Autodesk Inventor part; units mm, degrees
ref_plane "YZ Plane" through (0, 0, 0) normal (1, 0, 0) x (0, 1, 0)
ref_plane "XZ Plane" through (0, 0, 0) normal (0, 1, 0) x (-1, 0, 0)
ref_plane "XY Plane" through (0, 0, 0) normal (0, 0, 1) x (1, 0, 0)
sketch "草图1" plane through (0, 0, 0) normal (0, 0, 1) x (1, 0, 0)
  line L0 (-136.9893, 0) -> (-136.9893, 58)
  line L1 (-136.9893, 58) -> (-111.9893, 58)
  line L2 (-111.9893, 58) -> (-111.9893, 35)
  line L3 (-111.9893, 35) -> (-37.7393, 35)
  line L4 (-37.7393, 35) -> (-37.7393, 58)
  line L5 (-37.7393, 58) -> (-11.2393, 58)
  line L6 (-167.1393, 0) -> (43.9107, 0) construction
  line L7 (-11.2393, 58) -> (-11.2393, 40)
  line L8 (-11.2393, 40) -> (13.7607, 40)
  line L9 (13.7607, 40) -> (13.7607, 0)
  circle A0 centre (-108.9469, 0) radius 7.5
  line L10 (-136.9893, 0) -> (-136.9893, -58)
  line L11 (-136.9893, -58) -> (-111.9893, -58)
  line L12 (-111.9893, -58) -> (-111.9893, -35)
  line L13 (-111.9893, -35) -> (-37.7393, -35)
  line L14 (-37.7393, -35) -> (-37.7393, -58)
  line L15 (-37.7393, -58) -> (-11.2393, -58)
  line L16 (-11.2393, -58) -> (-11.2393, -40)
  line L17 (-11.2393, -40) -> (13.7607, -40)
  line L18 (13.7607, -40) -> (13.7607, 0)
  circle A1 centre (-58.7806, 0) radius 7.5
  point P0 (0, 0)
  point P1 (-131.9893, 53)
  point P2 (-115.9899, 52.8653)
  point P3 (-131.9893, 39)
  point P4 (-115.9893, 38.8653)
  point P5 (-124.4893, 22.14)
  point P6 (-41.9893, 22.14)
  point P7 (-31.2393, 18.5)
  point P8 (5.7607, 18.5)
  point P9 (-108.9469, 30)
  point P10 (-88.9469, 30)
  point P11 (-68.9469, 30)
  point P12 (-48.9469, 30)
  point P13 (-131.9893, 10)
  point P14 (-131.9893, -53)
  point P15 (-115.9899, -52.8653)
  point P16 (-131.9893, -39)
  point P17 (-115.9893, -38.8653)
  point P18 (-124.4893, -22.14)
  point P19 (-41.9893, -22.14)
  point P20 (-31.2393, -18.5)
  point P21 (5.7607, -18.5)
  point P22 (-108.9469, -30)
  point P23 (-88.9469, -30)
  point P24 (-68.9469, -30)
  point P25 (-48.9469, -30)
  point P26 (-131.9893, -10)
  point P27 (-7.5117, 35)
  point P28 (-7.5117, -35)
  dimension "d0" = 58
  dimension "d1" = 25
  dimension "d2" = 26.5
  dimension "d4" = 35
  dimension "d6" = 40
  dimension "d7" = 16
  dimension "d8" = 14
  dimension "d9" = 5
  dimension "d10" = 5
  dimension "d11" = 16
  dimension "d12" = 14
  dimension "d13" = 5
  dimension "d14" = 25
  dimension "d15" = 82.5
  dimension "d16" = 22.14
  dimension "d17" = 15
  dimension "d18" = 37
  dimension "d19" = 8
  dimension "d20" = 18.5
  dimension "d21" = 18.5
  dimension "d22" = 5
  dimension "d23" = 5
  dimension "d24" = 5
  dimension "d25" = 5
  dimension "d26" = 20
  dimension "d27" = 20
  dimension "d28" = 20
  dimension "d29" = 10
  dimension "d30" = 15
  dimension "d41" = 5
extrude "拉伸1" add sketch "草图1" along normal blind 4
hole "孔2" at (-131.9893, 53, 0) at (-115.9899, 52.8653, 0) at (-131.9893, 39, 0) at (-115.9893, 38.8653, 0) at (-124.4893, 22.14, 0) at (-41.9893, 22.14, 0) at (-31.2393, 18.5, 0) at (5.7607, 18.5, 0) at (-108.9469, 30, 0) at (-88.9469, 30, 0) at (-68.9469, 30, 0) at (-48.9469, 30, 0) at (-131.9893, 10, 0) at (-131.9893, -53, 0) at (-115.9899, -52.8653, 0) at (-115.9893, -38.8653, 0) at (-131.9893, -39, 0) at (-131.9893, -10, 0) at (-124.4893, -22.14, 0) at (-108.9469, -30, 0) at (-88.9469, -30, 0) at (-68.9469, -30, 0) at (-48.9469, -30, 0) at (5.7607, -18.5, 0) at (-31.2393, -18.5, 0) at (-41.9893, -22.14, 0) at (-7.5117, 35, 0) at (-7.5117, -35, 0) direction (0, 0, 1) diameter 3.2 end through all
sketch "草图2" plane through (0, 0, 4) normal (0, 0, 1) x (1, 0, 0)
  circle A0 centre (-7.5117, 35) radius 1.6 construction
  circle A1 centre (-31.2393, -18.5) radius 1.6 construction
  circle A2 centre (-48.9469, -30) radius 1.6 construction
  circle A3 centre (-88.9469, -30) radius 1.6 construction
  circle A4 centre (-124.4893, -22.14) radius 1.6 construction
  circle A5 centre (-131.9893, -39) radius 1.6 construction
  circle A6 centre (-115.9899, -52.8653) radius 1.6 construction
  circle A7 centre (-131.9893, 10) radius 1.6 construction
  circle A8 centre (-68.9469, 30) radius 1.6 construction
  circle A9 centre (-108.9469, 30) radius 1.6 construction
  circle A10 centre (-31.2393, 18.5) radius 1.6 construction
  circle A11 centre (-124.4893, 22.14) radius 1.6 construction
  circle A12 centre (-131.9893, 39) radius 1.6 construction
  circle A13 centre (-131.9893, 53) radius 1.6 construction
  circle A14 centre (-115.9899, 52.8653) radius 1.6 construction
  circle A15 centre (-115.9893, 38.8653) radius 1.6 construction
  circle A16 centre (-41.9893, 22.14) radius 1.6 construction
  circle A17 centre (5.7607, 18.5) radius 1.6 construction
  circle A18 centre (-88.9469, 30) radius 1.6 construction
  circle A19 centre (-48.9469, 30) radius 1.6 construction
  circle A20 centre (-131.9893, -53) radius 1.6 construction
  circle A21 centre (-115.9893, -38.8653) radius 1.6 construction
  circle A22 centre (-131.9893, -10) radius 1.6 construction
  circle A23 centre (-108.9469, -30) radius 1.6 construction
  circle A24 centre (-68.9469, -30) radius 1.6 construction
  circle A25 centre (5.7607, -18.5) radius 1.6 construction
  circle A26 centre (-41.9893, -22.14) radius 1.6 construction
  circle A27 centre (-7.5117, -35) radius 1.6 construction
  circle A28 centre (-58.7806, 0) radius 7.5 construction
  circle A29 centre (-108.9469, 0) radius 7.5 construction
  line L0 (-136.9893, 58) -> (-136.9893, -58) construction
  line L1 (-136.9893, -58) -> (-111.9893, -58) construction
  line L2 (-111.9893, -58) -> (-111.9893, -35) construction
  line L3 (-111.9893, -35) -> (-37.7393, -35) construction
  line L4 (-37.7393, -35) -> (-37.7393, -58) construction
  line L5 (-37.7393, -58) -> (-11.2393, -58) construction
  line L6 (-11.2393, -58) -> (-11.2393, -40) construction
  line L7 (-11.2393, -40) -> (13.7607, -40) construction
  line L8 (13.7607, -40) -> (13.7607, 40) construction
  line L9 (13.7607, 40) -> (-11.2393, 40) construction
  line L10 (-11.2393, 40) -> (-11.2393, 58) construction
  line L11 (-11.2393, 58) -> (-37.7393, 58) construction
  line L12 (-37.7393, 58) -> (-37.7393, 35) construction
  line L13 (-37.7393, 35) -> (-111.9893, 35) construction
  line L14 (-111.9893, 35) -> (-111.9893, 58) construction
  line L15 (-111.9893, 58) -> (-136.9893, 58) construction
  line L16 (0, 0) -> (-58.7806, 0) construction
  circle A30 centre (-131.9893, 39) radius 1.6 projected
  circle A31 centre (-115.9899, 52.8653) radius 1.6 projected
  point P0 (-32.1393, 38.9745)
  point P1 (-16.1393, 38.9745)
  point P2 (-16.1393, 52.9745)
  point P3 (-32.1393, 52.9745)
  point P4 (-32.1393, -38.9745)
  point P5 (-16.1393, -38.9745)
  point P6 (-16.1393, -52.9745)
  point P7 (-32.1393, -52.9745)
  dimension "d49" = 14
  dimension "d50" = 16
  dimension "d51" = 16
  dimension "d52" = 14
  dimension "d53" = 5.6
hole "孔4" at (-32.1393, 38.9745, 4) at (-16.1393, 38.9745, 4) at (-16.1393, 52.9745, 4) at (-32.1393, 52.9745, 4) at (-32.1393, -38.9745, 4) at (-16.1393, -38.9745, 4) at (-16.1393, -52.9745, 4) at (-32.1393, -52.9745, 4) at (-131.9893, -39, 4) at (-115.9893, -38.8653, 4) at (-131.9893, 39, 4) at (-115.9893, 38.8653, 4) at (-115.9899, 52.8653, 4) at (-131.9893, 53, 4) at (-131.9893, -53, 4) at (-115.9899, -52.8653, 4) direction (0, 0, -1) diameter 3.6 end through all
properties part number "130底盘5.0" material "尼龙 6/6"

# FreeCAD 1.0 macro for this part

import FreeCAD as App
import Part
import Sketcher
Q = App.Units.Quantity

doc = App.newDocument("Part")
body = doc.addObject("PartDesign::Body", "Body")

# Sketch on XY plane
sketch1 = body.newObject("Sketcher::SketchObject", "Sketch")
sketch1.AttachmentSupport = (doc.getObject("XY_Plane"), [""])
sketch1.MapMode = "FlatFace"
sketch1.addGeometry([
    Part.LineSegment(App.Vector(-137, 58, 0), App.Vector(-137, -58, 0)),  # 0
    Part.LineSegment(App.Vector(-137, -58, 0), App.Vector(-112, -58, 0)),  # 1
    Part.LineSegment(App.Vector(-112, -58, 0), App.Vector(-112, -35, 0)),  # 2
    Part.LineSegment(App.Vector(-112, -35, 0), App.Vector(-38, -35, 0)),  # 3
    Part.LineSegment(App.Vector(-38, -35, 0), App.Vector(-38, -58, 0)),  # 4
    Part.LineSegment(App.Vector(-38, -58, 0), App.Vector(-11, -58, 0)),  # 5
    Part.LineSegment(App.Vector(-11, -58, 0), App.Vector(-11, -40, 0)),  # 6
    Part.LineSegment(App.Vector(-11, -40, 0), App.Vector(14, -40, 0)),  # 7
    Part.LineSegment(App.Vector(14, -40, 0), App.Vector(14, 40, 0)),  # 8
    Part.LineSegment(App.Vector(14, 40, 0), App.Vector(-11, 40, 0)),  # 9
    Part.LineSegment(App.Vector(-11, 40, 0), App.Vector(-11, 58, 0)),  # 10
    Part.LineSegment(App.Vector(-11, 58, 0), App.Vector(-38, 58, 0)),  # 11
    Part.LineSegment(App.Vector(-38, 58, 0), App.Vector(-38, 35, 0)),  # 12
    Part.LineSegment(App.Vector(-38, 35, 0), App.Vector(-112, 35, 0)),  # 13
    Part.LineSegment(App.Vector(-112, 35, 0), App.Vector(-112, 58, 0)),  # 14
    Part.LineSegment(App.Vector(-112, 58, 0), App.Vector(-137, 58, 0)),  # 15
    Part.Circle(App.Vector(-109, 0, 0), App.Vector(0, 0, 1), 8),  # 16
    Part.Circle(App.Vector(-59, 0, 0), App.Vector(0, 0, 1), 8),  # 17
], False)
sketch1.addConstraint([
    Sketcher.Constraint("Coincident", 0, 2, 1, 1),
    Sketcher.Constraint("Coincident", 1, 2, 2, 1),
    Sketcher.Constraint("Coincident", 2, 2, 3, 1),
    Sketcher.Constraint("Coincident", 3, 2, 4, 1),
    Sketcher.Constraint("Coincident", 4, 2, 5, 1),
    Sketcher.Constraint("Coincident", 5, 2, 6, 1),
    Sketcher.Constraint("Coincident", 6, 2, 7, 1),
    Sketcher.Constraint("Coincident", 7, 2, 8, 1),
    Sketcher.Constraint("Coincident", 8, 2, 9, 1),
    Sketcher.Constraint("Coincident", 9, 2, 10, 1),
    Sketcher.Constraint("Coincident", 10, 2, 11, 1),
    Sketcher.Constraint("Coincident", 11, 2, 12, 1),
    Sketcher.Constraint("Coincident", 12, 2, 13, 1),
    Sketcher.Constraint("Coincident", 13, 2, 14, 1),
    Sketcher.Constraint("Coincident", 14, 2, 15, 1),
    Sketcher.Constraint("Coincident", 15, 2, 0, 1),
    Sketcher.Constraint("Vertical", 0),
    Sketcher.Constraint("Horizontal", 1),
    Sketcher.Constraint("Vertical", 2),
    Sketcher.Constraint("Horizontal", 3),
    Sketcher.Constraint("Vertical", 4),
    Sketcher.Constraint("Horizontal", 5),
    Sketcher.Constraint("Vertical", 6),
    Sketcher.Constraint("Horizontal", 7),
    Sketcher.Constraint("Vertical", 8),
    Sketcher.Constraint("Horizontal", 9),
    Sketcher.Constraint("Vertical", 10),
    Sketcher.Constraint("Horizontal", 11),
    Sketcher.Constraint("Vertical", 12),
    Sketcher.Constraint("Horizontal", 13),
    Sketcher.Constraint("Vertical", 14),
    Sketcher.Constraint("Horizontal", 15),
    Sketcher.Constraint("Equal", 16, 17),
    Sketcher.Constraint("Symmetric", 6, 2, 9, 2, -1),
    Sketcher.Constraint("Symmetric", 4, 2, 11, 2, -1),
    Sketcher.Constraint("Symmetric", 2, 2, 13, 2, -1),
    Sketcher.Constraint("PointOnObject", 16, 3, -1),
    Sketcher.Constraint("PointOnObject", 17, 3, -1),
    Sketcher.Constraint("Horizontal", 1, 2, 4, 2),
    Sketcher.Constraint("Horizontal", 11, 2, 14, 2),
    Sketcher.Constraint("Equal", 1, 7),
    Sketcher.Constraint("Diameter", 16, Q("15 mm")),
    Sketcher.Constraint("DistanceX", 1, 1, 1, 2, Q("25 mm")),
    Sketcher.Constraint("DistanceX", 5, 1, 5, 2, Q("26.5 mm")),
    Sketcher.Constraint("DistanceY", 0, 2, -1, 1, Q("58 mm")),
    Sketcher.Constraint("DistanceY", 2, 2, -1, 1, Q("35 mm")),
    Sketcher.Constraint("DistanceY", 6, 2, -1, 1, Q("40 mm")),
    Sketcher.Constraint("DistanceX", 3, 1, 3, 2, Q("74.25 mm")),
    Sketcher.Constraint("DistanceX", 16, 3, -1, 1, Q("108.947 mm")),
    Sketcher.Constraint("DistanceX", 17, 3, -1, 1, Q("58.7806 mm")),
    Sketcher.Constraint("DistanceX", 0, 2, -1, 1, Q("136.9893 mm")),
])
pad1 = body.newObject("PartDesign::Pad", "Pad")
pad1.Profile = sketch1
pad1.Length = 4

# Sketch on XY plane
sketch2 = body.newObject("Sketcher::SketchObject", "Sketch001")
sketch2.AttachmentSupport = (doc.getObject("XY_Plane"), [""])
sketch2.MapMode = "FlatFace"
sketch2.addGeometry([
    Part.Circle(App.Vector(-132, 53, 0), App.Vector(0, 0, 1), 1.6),  # 0
    Part.Circle(App.Vector(-116, 52.9, 0), App.Vector(0, 0, 1), 1.6),  # 1
    Part.Circle(App.Vector(-132, 39, 0), App.Vector(0, 0, 1), 1.6),  # 2
    Part.Circle(App.Vector(-116, 38.9, 0), App.Vector(0, 0, 1), 1.6),  # 3
    Part.Circle(App.Vector(-124.5, 22.1, 0), App.Vector(0, 0, 1), 1.6),  # 4
    Part.Circle(App.Vector(-42, 22.1, 0), App.Vector(0, 0, 1), 1.6),  # 5
    Part.Circle(App.Vector(-31.2, 18.5, 0), App.Vector(0, 0, 1), 1.6),  # 6
    Part.Circle(App.Vector(5.8, 18.5, 0), App.Vector(0, 0, 1), 1.6),  # 7
    Part.Circle(App.Vector(-108.9, 30, 0), App.Vector(0, 0, 1), 1.6),  # 8
    Part.Circle(App.Vector(-88.9, 30, 0), App.Vector(0, 0, 1), 1.6),  # 9
    Part.Circle(App.Vector(-68.9, 30, 0), App.Vector(0, 0, 1), 1.6),  # 10
    Part.Circle(App.Vector(-48.9, 30, 0), App.Vector(0, 0, 1), 1.6),  # 11
    Part.Circle(App.Vector(-132, 10, 0), App.Vector(0, 0, 1), 1.6),  # 12
    Part.Circle(App.Vector(-132, -53, 0), App.Vector(0, 0, 1), 1.6),  # 13
    Part.Circle(App.Vector(-116, -52.9, 0), App.Vector(0, 0, 1), 1.6),  # 14
    Part.Circle(App.Vector(-116, -38.9, 0), App.Vector(0, 0, 1), 1.6),  # 15
    Part.Circle(App.Vector(-132, -39, 0), App.Vector(0, 0, 1), 1.6),  # 16
    Part.Circle(App.Vector(-132, -10, 0), App.Vector(0, 0, 1), 1.6),  # 17
    Part.Circle(App.Vector(-124.5, -22.1, 0), App.Vector(0, 0, 1), 1.6),  # 18
    Part.Circle(App.Vector(-108.9, -30, 0), App.Vector(0, 0, 1), 1.6),  # 19
    Part.Circle(App.Vector(-88.9, -30, 0), App.Vector(0, 0, 1), 1.6),  # 20
    Part.Circle(App.Vector(-68.9, -30, 0), App.Vector(0, 0, 1), 1.6),  # 21
    Part.Circle(App.Vector(-48.9, -30, 0), App.Vector(0, 0, 1), 1.6),  # 22
    Part.Circle(App.Vector(5.8, -18.5, 0), App.Vector(0, 0, 1), 1.6),  # 23
    Part.Circle(App.Vector(-31.2, -18.5, 0), App.Vector(0, 0, 1), 1.6),  # 24
    Part.Circle(App.Vector(-42, -22.1, 0), App.Vector(0, 0, 1), 1.6),  # 25
    Part.Circle(App.Vector(-7.5, 35, 0), App.Vector(0, 0, 1), 1.6),  # 26
    Part.Circle(App.Vector(-7.5, -35, 0), App.Vector(0, 0, 1), 1.6),  # 27
], False)
sketch2.addConstraint([
    Sketcher.Constraint("Equal", 0, 1),
    Sketcher.Constraint("Equal", 1, 2),
    Sketcher.Constraint("Equal", 2, 3),
    Sketcher.Constraint("Equal", 3, 4),
    Sketcher.Constraint("Equal", 4, 5),
    Sketcher.Constraint("Equal", 5, 6),
    Sketcher.Constraint("Equal", 6, 7),
    Sketcher.Constraint("Equal", 7, 8),
    Sketcher.Constraint("Equal", 8, 9),
    Sketcher.Constraint("Equal", 9, 10),
    Sketcher.Constraint("Equal", 10, 11),
    Sketcher.Constraint("Equal", 11, 12),
    Sketcher.Constraint("Equal", 12, 13),
    Sketcher.Constraint("Equal", 13, 14),
    Sketcher.Constraint("Equal", 14, 15),
    Sketcher.Constraint("Equal", 15, 16),
    Sketcher.Constraint("Equal", 16, 17),
    Sketcher.Constraint("Equal", 17, 18),
    Sketcher.Constraint("Equal", 18, 19),
    Sketcher.Constraint("Equal", 19, 20),
    Sketcher.Constraint("Equal", 20, 21),
    Sketcher.Constraint("Equal", 21, 22),
    Sketcher.Constraint("Equal", 22, 23),
    Sketcher.Constraint("Equal", 23, 24),
    Sketcher.Constraint("Equal", 24, 25),
    Sketcher.Constraint("Equal", 25, 26),
    Sketcher.Constraint("Equal", 26, 27),
    Sketcher.Constraint("Symmetric", 0, 3, 13, 3, -1),
    Sketcher.Constraint("Symmetric", 1, 3, 14, 3, -1),
    Sketcher.Constraint("Symmetric", 3, 3, 15, 3, -1),
    Sketcher.Constraint("Symmetric", 2, 3, 16, 3, -1),
    Sketcher.Constraint("Symmetric", 12, 3, 17, 3, -1),
    Sketcher.Constraint("Symmetric", 4, 3, 18, 3, -1),
    Sketcher.Constraint("Symmetric", 8, 3, 19, 3, -1),
    Sketcher.Constraint("Symmetric", 9, 3, 20, 3, -1),
    Sketcher.Constraint("Symmetric", 10, 3, 21, 3, -1),
    Sketcher.Constraint("Symmetric", 11, 3, 22, 3, -1),
    Sketcher.Constraint("Symmetric", 7, 3, 23, 3, -1),
    Sketcher.Constraint("Symmetric", 6, 3, 24, 3, -1),
    Sketcher.Constraint("Symmetric", 5, 3, 25, 3, -1),
    Sketcher.Constraint("Symmetric", 26, 3, 27, 3, -1),
    Sketcher.Constraint("Horizontal", 4, 3, 5, 3),
    Sketcher.Constraint("Horizontal", 6, 3, 7, 3),
    Sketcher.Constraint("Horizontal", 8, 3, 9, 3),
    Sketcher.Constraint("Horizontal", 9, 3, 10, 3),
    Sketcher.Constraint("Horizontal", 10, 3, 11, 3),
    Sketcher.Constraint("Vertical", 0, 3, 2, 3),
    Sketcher.Constraint("Vertical", 2, 3, 12, 3),
    Sketcher.Constraint("Diameter", 0, Q("3.2 mm")),
    Sketcher.Constraint("DistanceY", -1, 1, 0, 3, Q("53 mm")),
    Sketcher.Constraint("DistanceY", -1, 1, 2, 3, Q("39 mm")),
    Sketcher.Constraint("DistanceY", -1, 1, 8, 3, Q("30 mm")),
    Sketcher.Constraint("DistanceY", -1, 1, 12, 3, Q("10 mm")),
    Sketcher.Constraint("DistanceY", -1, 1, 26, 3, Q("35 mm")),
    Sketcher.Constraint("DistanceY", 3, 3, 1, 3, Q("14 mm")),
    Sketcher.Constraint("DistanceX", 2, 3, 3, 3, Q("16 mm")),
    Sketcher.Constraint("DistanceX", 3, 3, 5, 3, Q("74 mm")),
    Sketcher.Constraint("DistanceX", 6, 3, 7, 3, Q("37 mm")),
    Sketcher.Constraint("DistanceX", 8, 3, 9, 3, Q("20 mm")),
    Sketcher.Constraint("DistanceX", 9, 3, 10, 3, Q("20 mm")),
    Sketcher.Constraint("DistanceX", 10, 3, 11, 3, Q("20 mm")),
    Sketcher.Constraint("DistanceY", 23, 3, 7, 3, Q("37 mm")),
    Sketcher.Constraint("DistanceX", 2, 3, 4, 3, Q("7.5 mm")),
    Sketcher.Constraint("DistanceX", 1, 3, -1, 1, Q("115.99 mm")),
    Sketcher.Constraint("DistanceY", -1, 1, 4, 3, Q("22.14 mm")),
    Sketcher.Constraint("DistanceX", 5, 3, 6, 3, Q("10.75 mm")),
    Sketcher.Constraint("DistanceX", 8, 3, -1, 1, Q("108.947 mm")),
    Sketcher.Constraint("DistanceX", 0, 3, -1, 1, Q("131.9893 mm")),
    Sketcher.Constraint("DistanceY", -1, 1, 1, 3, Q("52.8653 mm")),
    Sketcher.Constraint("DistanceX", 26, 3, -1, 1, Q("7.5117 mm")),
])
doc.recompute()
hole = body.newObject("PartDesign::Hole", "Hole")
hole.Profile = sketch2
hole.ThreadType = "None"
hole.Diameter = 3.2
hole.DepthType = "ThroughAll"
hole.Reversed = True

# Sketch on XY plane
sketch3 = body.newObject("Sketcher::SketchObject", "Sketch002")
sketch3.AttachmentSupport = (doc.getObject("XY_Plane"), [""])
sketch3.MapMode = "FlatFace"
sketch3.AttachmentOffset = App.Placement(App.Vector(0, 0, 4), App.Rotation())
sketch3.addGeometry([
    Part.Circle(App.Vector(-32.1, 39, 0), App.Vector(0, 0, 1), 1.8),  # 0
    Part.Circle(App.Vector(-16.1, 39, 0), App.Vector(0, 0, 1), 1.8),  # 1
    Part.Circle(App.Vector(-16.1, 53, 0), App.Vector(0, 0, 1), 1.8),  # 2
    Part.Circle(App.Vector(-32.1, 53, 0), App.Vector(0, 0, 1), 1.8),  # 3
    Part.Circle(App.Vector(-32.1, -39, 0), App.Vector(0, 0, 1), 1.8),  # 4
    Part.Circle(App.Vector(-16.1, -39, 0), App.Vector(0, 0, 1), 1.8),  # 5
    Part.Circle(App.Vector(-16.1, -53, 0), App.Vector(0, 0, 1), 1.8),  # 6
    Part.Circle(App.Vector(-32.1, -53, 0), App.Vector(0, 0, 1), 1.8),  # 7
    Part.Circle(App.Vector(-132, -39, 0), App.Vector(0, 0, 1), 1.8),  # 8
    Part.Circle(App.Vector(-116, -38.9, 0), App.Vector(0, 0, 1), 1.8),  # 9
    Part.Circle(App.Vector(-132, 39, 0), App.Vector(0, 0, 1), 1.8),  # 10
    Part.Circle(App.Vector(-116, 38.9, 0), App.Vector(0, 0, 1), 1.8),  # 11
    Part.Circle(App.Vector(-116, 52.9, 0), App.Vector(0, 0, 1), 1.8),  # 12
    Part.Circle(App.Vector(-132, 53, 0), App.Vector(0, 0, 1), 1.8),  # 13
    Part.Circle(App.Vector(-132, -53, 0), App.Vector(0, 0, 1), 1.8),  # 14
    Part.Circle(App.Vector(-116, -52.9, 0), App.Vector(0, 0, 1), 1.8),  # 15
], False)
sketch3.addConstraint([
    Sketcher.Constraint("Equal", 0, 1),
    Sketcher.Constraint("Equal", 1, 2),
    Sketcher.Constraint("Equal", 2, 3),
    Sketcher.Constraint("Equal", 3, 4),
    Sketcher.Constraint("Equal", 4, 5),
    Sketcher.Constraint("Equal", 5, 6),
    Sketcher.Constraint("Equal", 6, 7),
    Sketcher.Constraint("Equal", 7, 8),
    Sketcher.Constraint("Equal", 8, 9),
    Sketcher.Constraint("Equal", 9, 10),
    Sketcher.Constraint("Equal", 10, 11),
    Sketcher.Constraint("Equal", 11, 12),
    Sketcher.Constraint("Equal", 12, 13),
    Sketcher.Constraint("Equal", 13, 14),
    Sketcher.Constraint("Equal", 14, 15),
    Sketcher.Constraint("Symmetric", 0, 3, 4, 3, -1),
    Sketcher.Constraint("Symmetric", 1, 3, 5, 3, -1),
    Sketcher.Constraint("Symmetric", 2, 3, 6, 3, -1),
    Sketcher.Constraint("Symmetric", 3, 3, 7, 3, -1),
    Sketcher.Constraint("Symmetric", 8, 3, 10, 3, -1),
    Sketcher.Constraint("Symmetric", 9, 3, 11, 3, -1),
    Sketcher.Constraint("Symmetric", 13, 3, 14, 3, -1),
    Sketcher.Constraint("Symmetric", 12, 3, 15, 3, -1),
    Sketcher.Constraint("Horizontal", 0, 3, 1, 3),
    Sketcher.Constraint("Horizontal", 2, 3, 3, 3),
    Sketcher.Constraint("Vertical", 1, 3, 2, 3),
    Sketcher.Constraint("Vertical", 0, 3, 3, 3),
    Sketcher.Constraint("Vertical", 10, 3, 13, 3),
    Sketcher.Constraint("Diameter", 0, Q("3.6 mm")),
    Sketcher.Constraint("DistanceY", 8, 3, -1, 1, Q("39 mm")),
    Sketcher.Constraint("DistanceY", -1, 1, 13, 3, Q("53 mm")),
    Sketcher.Constraint("DistanceX", 0, 3, 1, 3, Q("16 mm")),
    Sketcher.Constraint("DistanceY", 1, 3, 2, 3, Q("14 mm")),
    Sketcher.Constraint("DistanceX", 8, 3, 9, 3, Q("16 mm")),
    Sketcher.Constraint("DistanceY", 11, 3, 12, 3, Q("14 mm")),
    Sketcher.Constraint("DistanceX", 12, 3, -1, 1, Q("115.99 mm")),
    Sketcher.Constraint("DistanceX", 8, 3, 4, 3, Q("99.85 mm")),
    Sketcher.Constraint("DistanceY", 4, 3, 0, 3, Q("77.949 mm")),
    Sketcher.Constraint("DistanceX", 0, 3, -1, 1, Q("32.1393 mm")),
    Sketcher.Constraint("DistanceY", 9, 3, -1, 1, Q("38.8653 mm")),
])
doc.recompute()
hole2 = body.newObject("PartDesign::Hole", "Hole001")
hole2.Profile = sketch3
hole2.ThreadType = "None"
hole2.Diameter = 3.6
hole2.DepthType = "ThroughAll"

doc.recompute()
